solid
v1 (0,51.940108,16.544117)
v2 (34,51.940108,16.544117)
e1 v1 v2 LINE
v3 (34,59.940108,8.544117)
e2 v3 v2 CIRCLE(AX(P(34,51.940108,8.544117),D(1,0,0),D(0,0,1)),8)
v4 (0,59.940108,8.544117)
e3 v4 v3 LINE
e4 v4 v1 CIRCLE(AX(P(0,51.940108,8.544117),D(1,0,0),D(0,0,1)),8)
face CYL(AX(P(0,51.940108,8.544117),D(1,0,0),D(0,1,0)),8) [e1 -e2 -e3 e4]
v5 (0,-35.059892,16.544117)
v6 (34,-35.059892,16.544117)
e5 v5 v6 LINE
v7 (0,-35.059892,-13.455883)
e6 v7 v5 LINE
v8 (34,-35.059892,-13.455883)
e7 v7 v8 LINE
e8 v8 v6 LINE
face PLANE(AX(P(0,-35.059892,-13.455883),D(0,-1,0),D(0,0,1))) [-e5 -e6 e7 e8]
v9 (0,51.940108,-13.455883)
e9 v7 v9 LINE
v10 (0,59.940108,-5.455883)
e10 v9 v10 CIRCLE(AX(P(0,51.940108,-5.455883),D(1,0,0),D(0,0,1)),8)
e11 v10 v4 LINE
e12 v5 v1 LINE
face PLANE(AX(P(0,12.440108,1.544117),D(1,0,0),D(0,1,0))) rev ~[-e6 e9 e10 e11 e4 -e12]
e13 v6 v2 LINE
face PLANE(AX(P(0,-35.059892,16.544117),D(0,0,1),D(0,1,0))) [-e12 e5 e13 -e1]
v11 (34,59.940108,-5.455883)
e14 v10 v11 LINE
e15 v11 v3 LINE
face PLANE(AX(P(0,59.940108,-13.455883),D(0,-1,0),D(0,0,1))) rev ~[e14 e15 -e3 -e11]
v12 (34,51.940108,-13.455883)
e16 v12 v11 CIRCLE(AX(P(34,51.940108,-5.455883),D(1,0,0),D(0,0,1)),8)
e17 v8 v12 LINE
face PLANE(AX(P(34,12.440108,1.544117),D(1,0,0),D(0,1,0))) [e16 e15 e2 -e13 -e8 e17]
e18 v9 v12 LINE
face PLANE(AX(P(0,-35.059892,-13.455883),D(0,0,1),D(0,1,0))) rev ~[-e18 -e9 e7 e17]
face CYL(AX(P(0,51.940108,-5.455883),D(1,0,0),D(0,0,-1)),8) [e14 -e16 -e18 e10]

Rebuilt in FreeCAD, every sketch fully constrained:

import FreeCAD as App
import Part
import Sketcher

V = App.Vector


def edges_at(feature, points):
    """Names of the edges that pass closest to the given points."""
    edges = feature.Shape.Edges
    near = lambda p: min(range(len(edges)), key=lambda i: edges[i].distToShape(Part.Vertex(*p))[0])
    return sorted({f"Edge{near(p) + 1}" for p in points})


def add_polygon(sketch, points):
    """Adds a closed chain of lines whose ends are joined by coincident constraints."""
    first, n = sketch.GeometryCount, len(points)
    for a, b in zip(points, points[1:] + points[:1]):
        sketch.addGeometry(Part.LineSegment(App.Vector(*a, 0), App.Vector(*b, 0)), False)
    for i in range(n):
        sketch.addConstraint(Sketcher.Constraint("Coincident", first + i, 2, first + (i + 1) % n, 1))

doc = App.newDocument("Part")
body = doc.addObject("PartDesign::Body", "Body")

sketch1 = body.newObject("Sketcher::SketchObject", "Sketch")
sketch1.AttachmentSupport = (doc.getObject("YZ_Plane"), [""])
sketch1.MapMode = "FlatFace"
add_polygon(sketch1, [(-35, 17), (-35, -13), (60, -13), (60, 17)])
sketch1.addConstraint(Sketcher.Constraint("Vertical", 0))
sketch1.addConstraint(Sketcher.Constraint("Horizontal", 1))
sketch1.addConstraint(Sketcher.Constraint("Vertical", 2))
sketch1.addConstraint(Sketcher.Constraint("Horizontal", 3))
sketch1.addConstraint(Sketcher.Constraint("DistanceX", 1, 1, 1, 2, 95.0))
sketch1.addConstraint(Sketcher.Constraint("DistanceY", 0, 2, 0, 1, 30.0))
sketch1.addConstraint(Sketcher.Constraint("DistanceX", 0, 2, -1, 1, 35.059892))
sketch1.addConstraint(Sketcher.Constraint("DistanceY", 0, 2, -1, 1, 13.455883))
pad1 = body.newObject("PartDesign::Pad", "Pad")
pad1.Profile = sketch1
pad1.Length = 34
doc.recompute()

fillet = body.newObject("PartDesign::Fillet", "Fillet")
fillet.Base = (pad1, edges_at(pad1, [(17, 59.94, 16.544), (17, 59.94, -13.456)]))
fillet.Radius = 8

doc.recompute()
